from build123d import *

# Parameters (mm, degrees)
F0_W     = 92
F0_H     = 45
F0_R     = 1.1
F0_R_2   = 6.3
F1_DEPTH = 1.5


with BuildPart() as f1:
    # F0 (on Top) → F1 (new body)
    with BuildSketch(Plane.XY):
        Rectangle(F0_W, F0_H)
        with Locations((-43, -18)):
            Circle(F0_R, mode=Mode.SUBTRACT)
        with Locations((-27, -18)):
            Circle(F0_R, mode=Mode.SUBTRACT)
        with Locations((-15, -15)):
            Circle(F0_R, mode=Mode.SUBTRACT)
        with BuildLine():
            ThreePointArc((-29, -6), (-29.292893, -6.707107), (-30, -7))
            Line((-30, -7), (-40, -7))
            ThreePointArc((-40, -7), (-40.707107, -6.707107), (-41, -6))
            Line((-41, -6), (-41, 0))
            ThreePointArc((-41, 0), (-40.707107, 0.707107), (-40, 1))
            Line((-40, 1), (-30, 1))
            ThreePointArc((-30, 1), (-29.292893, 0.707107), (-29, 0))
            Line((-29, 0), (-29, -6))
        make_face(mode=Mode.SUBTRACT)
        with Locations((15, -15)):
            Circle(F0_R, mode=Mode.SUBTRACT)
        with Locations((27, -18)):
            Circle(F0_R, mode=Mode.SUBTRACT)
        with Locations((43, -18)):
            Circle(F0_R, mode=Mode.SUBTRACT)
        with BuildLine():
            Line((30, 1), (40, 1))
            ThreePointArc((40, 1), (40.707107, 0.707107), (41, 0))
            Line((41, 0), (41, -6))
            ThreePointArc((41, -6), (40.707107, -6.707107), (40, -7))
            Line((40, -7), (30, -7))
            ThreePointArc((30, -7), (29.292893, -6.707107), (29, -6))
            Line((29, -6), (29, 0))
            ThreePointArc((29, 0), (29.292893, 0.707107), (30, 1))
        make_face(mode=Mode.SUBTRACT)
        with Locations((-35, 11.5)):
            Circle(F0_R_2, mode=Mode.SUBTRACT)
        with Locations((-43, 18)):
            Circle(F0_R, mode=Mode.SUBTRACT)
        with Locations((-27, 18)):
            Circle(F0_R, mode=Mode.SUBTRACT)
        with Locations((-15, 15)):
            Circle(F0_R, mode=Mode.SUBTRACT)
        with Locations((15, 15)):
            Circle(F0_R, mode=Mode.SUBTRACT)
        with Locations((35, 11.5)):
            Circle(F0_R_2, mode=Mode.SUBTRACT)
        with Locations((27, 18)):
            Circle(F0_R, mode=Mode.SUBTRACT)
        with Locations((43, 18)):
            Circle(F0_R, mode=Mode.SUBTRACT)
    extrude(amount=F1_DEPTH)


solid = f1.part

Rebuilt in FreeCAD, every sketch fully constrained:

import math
import FreeCAD as App
import Part
import Sketcher

V = App.Vector

doc = App.newDocument("Part")
params = doc.addObject("Spreadsheet::Sheet", "Params")
for row, (alias, value) in enumerate([
    ("sketch1_radius", "0.999999 mm"),
    ("sketch1_diameter", "2.2 mm"),
    ("sketch1_diameter2", "12.6 mm"),
    ("sketch1_width", "92 mm"),
    ("sketch1_width2", "10 mm"),
    ("pad1_length", "1.5 mm"),
], start=1):
    params.set(f"A{row}", alias)
    params.set(f"B{row}", "=" + value)
    params.setAlias(f"B{row}", alias)

body = doc.addObject("PartDesign::Body", "Body")

# Sketch on XY plane
sketch1 = doc.addObject("Sketcher::SketchObject", "Sketch")
body.addObject(sketch1)
sketch1.AttachmentSupport = (doc.XY_Plane, [""])
sketch1.MapMode = "FlatFace"
sketch1.addGeometry(Part.LineSegment(V(-46, 22.5, 0), V(-46, -22.5, 0)), False)
sketch1.addGeometry(Part.LineSegment(V(-46, -22.5, 0), V(46, -22.5, 0)), False)
sketch1.addGeometry(Part.LineSegment(V(46, -22.5, 0), V(46, 22.5, 0)), False)
sketch1.addGeometry(Part.LineSegment(V(46, 22.5, 0), V(-46, 22.5, 0)), False)
sketch1.addGeometry(Part.Circle(V(-43, -18, 0), V(0, 0, 1), 1.1), False)
sketch1.addGeometry(Part.Circle(V(-27, -18, 0), V(0, 0, 1), 1.1), False)
sketch1.addGeometry(Part.Circle(V(-15, -15, 0), V(0, 0, 1), 1.1), False)
sketch1.addGeometry(Part.LineSegment(V(-29, 0, 0), V(-29, -6, 0)), False)
sketch1.addGeometry(Part.ArcOfCircle(Part.Circle(V(-30, -6, 0), V(0, 0, 1), 1), math.radians(-90), math.radians(0)), False)
sketch1.addGeometry(Part.LineSegment(V(-30, -7, 0), V(-40, -7, 0)), False)
sketch1.addGeometry(Part.ArcOfCircle(Part.Circle(V(-40, -6, 0), V(0, 0, 1), 1), math.radians(180), math.radians(270)), False)
sketch1.addGeometry(Part.LineSegment(V(-41, -6, 0), V(-41, 0, 0)), False)
sketch1.addGeometry(Part.ArcOfCircle(Part.Circle(V(-40, 0, 0), V(0, 0, 1), 1), math.radians(90), math.radians(180)), False)
sketch1.addGeometry(Part.LineSegment(V(-40, 1, 0), V(-30, 1, 0)), False)
sketch1.addGeometry(Part.ArcOfCircle(Part.Circle(V(-30, 0, 0), V(0, 0, 1), 1), math.radians(0), math.radians(90)), False)
sketch1.addGeometry(Part.Circle(V(15, -15, 0), V(0, 0, 1), 1.1), False)
sketch1.addGeometry(Part.Circle(V(27, -18, 0), V(0, 0, 1), 1.1), False)
sketch1.addGeometry(Part.Circle(V(43, -18, 0), V(0, 0, 1), 1.1), False)
sketch1.addGeometry(Part.ArcOfCircle(Part.Circle(V(30, 0, 0), V(0, 0, 1), 1), math.radians(90), math.radians(180)), False)
sketch1.addGeometry(Part.LineSegment(V(30, 1, 0), V(40, 1, 0)), False)
sketch1.addGeometry(Part.ArcOfCircle(Part.Circle(V(40, 0, 0), V(0, 0, 1), 1), math.radians(0), math.radians(90)), False)
sketch1.addGeometry(Part.LineSegment(V(41, 0, 0), V(41, -6, 0)), False)
sketch1.addGeometry(Part.ArcOfCircle(Part.Circle(V(40, -6, 0), V(0, 0, 1), 1), math.radians(-90), math.radians(0)), False)
sketch1.addGeometry(Part.LineSegment(V(40, -7, 0), V(30, -7, 0)), False)
sketch1.addGeometry(Part.ArcOfCircle(Part.Circle(V(30, -6, 0), V(0, 0, 1), 1), math.radians(180), math.radians(270)), False)
sketch1.addGeometry(Part.LineSegment(V(29, -6, 0), V(29, 0, 0)), False)
sketch1.addGeometry(Part.Circle(V(-35, 11.5, 0), V(0, 0, 1), 6.3), False)
sketch1.addGeometry(Part.Circle(V(-43, 18, 0), V(0, 0, 1), 1.1), False)
sketch1.addGeometry(Part.Circle(V(-27, 18, 0), V(0, 0, 1), 1.1), False)
sketch1.addGeometry(Part.Circle(V(-15, 15, 0), V(0, 0, 1), 1.1), False)
sketch1.addGeometry(Part.Circle(V(15, 15, 0), V(0, 0, 1), 1.1), False)
sketch1.addGeometry(Part.Circle(V(35, 11.5, 0), V(0, 0, 1), 6.3), False)
sketch1.addGeometry(Part.Circle(V(27, 18, 0), V(0, 0, 1), 1.1), False)
sketch1.addGeometry(Part.Circle(V(43, 18, 0), V(0, 0, 1), 1.1), False)
sketch1.addConstraint(Sketcher.Constraint("Coincident", 0, 2, 1, 1))
sketch1.addConstraint(Sketcher.Constraint("Coincident", 1, 2, 2, 1))
sketch1.addConstraint(Sketcher.Constraint("Coincident", 2, 2, 3, 1))
sketch1.addConstraint(Sketcher.Constraint("Coincident", 3, 2, 0, 1))
sketch1.addConstraint(Sketcher.Constraint("Tangent", 7, 2, 8, 2))
sketch1.addConstraint(Sketcher.Constraint("Tangent", 8, 1, 9, 1))
sketch1.addConstraint(Sketcher.Constraint("Tangent", 9, 2, 10, 2))
sketch1.addConstraint(Sketcher.Constraint("Tangent", 10, 1, 11, 1))
sketch1.addConstraint(Sketcher.Constraint("Tangent", 11, 2, 12, 2))
sketch1.addConstraint(Sketcher.Constraint("Tangent", 12, 1, 13, 1))
sketch1.addConstraint(Sketcher.Constraint("Tangent", 13, 2, 14, 2))
sketch1.addConstraint(Sketcher.Constraint("Tangent", 14, 1, 7, 1))
sketch1.addConstraint(Sketcher.Constraint("Tangent", 18, 1, 19, 1))
sketch1.addConstraint(Sketcher.Constraint("Tangent", 19, 2, 20, 2))
sketch1.addConstraint(Sketcher.Constraint("Tangent", 20, 1, 21, 1))
sketch1.addConstraint(Sketcher.Constraint("Tangent", 21, 2, 22, 2))
sketch1.addConstraint(Sketcher.Constraint("Tangent", 22, 1, 23, 1))
sketch1.addConstraint(Sketcher.Constraint("Tangent", 23, 2, 24, 2))
sketch1.addConstraint(Sketcher.Constraint("Tangent", 24, 1, 25, 1))
sketch1.addConstraint(Sketcher.Constraint("Tangent", 25, 2, 18, 2))
sketch1.addConstraint(Sketcher.Constraint("Vertical", 0))
sketch1.addConstraint(Sketcher.Constraint("Horizontal", 1))
sketch1.addConstraint(Sketcher.Constraint("Vertical", 2))
sketch1.addConstraint(Sketcher.Constraint("Horizontal", 3))
sketch1.addConstraint(Sketcher.Constraint("Vertical", 7))
sketch1.addConstraint(Sketcher.Constraint("Horizontal", 9))
sketch1.addConstraint(Sketcher.Constraint("Vertical", 11))
sketch1.addConstraint(Sketcher.Constraint("Horizontal", 13))
sketch1.addConstraint(Sketcher.Constraint("Horizontal", 19))
sketch1.addConstraint(Sketcher.Constraint("Vertical", 21))
sketch1.addConstraint(Sketcher.Constraint("Horizontal", 23))
sketch1.addConstraint(Sketcher.Constraint("Vertical", 25))
sketch1.addConstraint(Sketcher.Constraint("Equal", 4, 5))
sketch1.addConstraint(Sketcher.Constraint("Equal", 5, 6))
sketch1.addConstraint(Sketcher.Constraint("Equal", 8, 10))
sketch1.addConstraint(Sketcher.Constraint("Equal", 10, 12))
sketch1.addConstraint(Sketcher.Constraint("Equal", 12, 14))
sketch1.addConstraint(Sketcher.Constraint("Equal", 6, 15))
sketch1.addConstraint(Sketcher.Constraint("Equal", 15, 16))
sketch1.addConstraint(Sketcher.Constraint("Equal", 16, 17))
sketch1.addConstraint(Sketcher.Constraint("Equal", 14, 18))
sketch1.addConstraint(Sketcher.Constraint("Equal", 18, 20))
sketch1.addConstraint(Sketcher.Constraint("Equal", 20, 22))
sketch1.addConstraint(Sketcher.Constraint("Equal", 22, 24))
sketch1.addConstraint(Sketcher.Constraint("Equal", 17, 27))
sketch1.addConstraint(Sketcher.Constraint("Equal", 27, 28))
sketch1.addConstraint(Sketcher.Constraint("Equal", 28, 29))
sketch1.addConstraint(Sketcher.Constraint("Equal", 29, 30))
sketch1.addConstraint(Sketcher.Constraint("Equal", 26, 31))
sketch1.addConstraint(Sketcher.Constraint("Equal", 30, 32))
sketch1.addConstraint(Sketcher.Constraint("Equal", 32, 33))
sketch1.addConstraint(Sketcher.Constraint("Symmetric", 14, 3, 18, 3, -1, 1))
sketch1.addConstraint(Sketcher.Constraint("Symmetric", 17, 3, 27, 3, -1, 1))
sketch1.addConstraint(Sketcher.Constraint("Symmetric", 16, 3, 28, 3, -1, 1))
sketch1.addConstraint(Sketcher.Constraint("Symmetric", 15, 3, 29, 3, -1, 1))
sketch1.addConstraint(Sketcher.Constraint("Symmetric", 6, 3, 30, 3, -1, 1))
sketch1.addConstraint(Sketcher.Constraint("Symmetric", 5, 3, 32, 3, -1, 1))
sketch1.addConstraint(Sketcher.Constraint("Symmetric", 4, 3, 33, 3, -1, 1))
sketch1.addConstraint(Sketcher.Constraint("Symmetric", 0, 2, 2, 2, -1, 1))
sketch1.addConstraint(Sketcher.Constraint("Symmetric", 6, 3, 15, 3, -2))
sketch1.addConstraint(Sketcher.Constraint("Symmetric", 5, 3, 16, 3, -2))
sketch1.addConstraint(Sketcher.Constraint("Symmetric", 4, 3, 17, 3, -2))
sketch1.addConstraint(Sketcher.Constraint("Symmetric", 12, 3, 20, 3, -2))
sketch1.addConstraint(Sketcher.Constraint("Symmetric", 26, 3, 31, 3, -2))
sketch1.addConstraint(Sketcher.Constraint("Horizontal", 4, 3, 5, 3))
sketch1.addConstraint(Sketcher.Constraint("Horizontal", 10, 3, 22, 3))
sketch1.addConstraint(Sketcher.Constraint("Radius", 8, 0.999999))
sketch1.addConstraint(Sketcher.Constraint("Diameter", 4, 2.2))
sketch1.addConstraint(Sketcher.Constraint("Diameter", 26, 12.6))
sketch1.addConstraint(Sketcher.Constraint("DistanceX", 1, 1, 1, 2, 92.0))
sketch1.addConstraint(Sketcher.Constraint("DistanceX", 9, 2, 9, 1, 10.0))
sketch1.addConstraint(Sketcher.Constraint("DistanceY", 0, 2, 0, 1, 45.0))
sketch1.addConstraint(Sketcher.Constraint("DistanceY", 7, 2, 7, 1, 6.0))
sketch1.addConstraint(Sketcher.Constraint("DistanceX", 4, 3, -1, 1, 43.0))
sketch1.addConstraint(Sketcher.Constraint("DistanceY", 4, 3, -1, 1, 18.0))
sketch1.addConstraint(Sketcher.Constraint("DistanceX", 5, 3, -1, 1, 27.0))
sketch1.addConstraint(Sketcher.Constraint("DistanceX", 6, 3, -1, 1, 15.0))
sketch1.addConstraint(Sketcher.Constraint("DistanceY", 6, 3, -1, 1, 15.0))
sketch1.addConstraint(Sketcher.Constraint("DistanceX", 8, 3, -1, 1, 29.999999))
sketch1.addConstraint(Sketcher.Constraint("DistanceX", 26, 3, -1, 1, 35.0))
sketch1.addConstraint(Sketcher.Constraint("DistanceY", 31, 3, 2, 2, 11.0))
sketch1.setExpression("Constraints[66]", "Params.sketch1_radius")
sketch1.setExpression("Constraints[67]", "Params.sketch1_diameter")
sketch1.setExpression("Constraints[68]", "Params.sketch1_diameter2")
sketch1.setExpression("Constraints[69]", "Params.sketch1_width")
sketch1.setExpression("Constraints[70]", "Params.sketch1_width2")
pad1 = doc.addObject("PartDesign::Pad", "Pad")
body.addObject(pad1)
pad1.Profile = sketch1
pad1.setExpression("Length", "Params.pad1_length")

doc.recompute()
